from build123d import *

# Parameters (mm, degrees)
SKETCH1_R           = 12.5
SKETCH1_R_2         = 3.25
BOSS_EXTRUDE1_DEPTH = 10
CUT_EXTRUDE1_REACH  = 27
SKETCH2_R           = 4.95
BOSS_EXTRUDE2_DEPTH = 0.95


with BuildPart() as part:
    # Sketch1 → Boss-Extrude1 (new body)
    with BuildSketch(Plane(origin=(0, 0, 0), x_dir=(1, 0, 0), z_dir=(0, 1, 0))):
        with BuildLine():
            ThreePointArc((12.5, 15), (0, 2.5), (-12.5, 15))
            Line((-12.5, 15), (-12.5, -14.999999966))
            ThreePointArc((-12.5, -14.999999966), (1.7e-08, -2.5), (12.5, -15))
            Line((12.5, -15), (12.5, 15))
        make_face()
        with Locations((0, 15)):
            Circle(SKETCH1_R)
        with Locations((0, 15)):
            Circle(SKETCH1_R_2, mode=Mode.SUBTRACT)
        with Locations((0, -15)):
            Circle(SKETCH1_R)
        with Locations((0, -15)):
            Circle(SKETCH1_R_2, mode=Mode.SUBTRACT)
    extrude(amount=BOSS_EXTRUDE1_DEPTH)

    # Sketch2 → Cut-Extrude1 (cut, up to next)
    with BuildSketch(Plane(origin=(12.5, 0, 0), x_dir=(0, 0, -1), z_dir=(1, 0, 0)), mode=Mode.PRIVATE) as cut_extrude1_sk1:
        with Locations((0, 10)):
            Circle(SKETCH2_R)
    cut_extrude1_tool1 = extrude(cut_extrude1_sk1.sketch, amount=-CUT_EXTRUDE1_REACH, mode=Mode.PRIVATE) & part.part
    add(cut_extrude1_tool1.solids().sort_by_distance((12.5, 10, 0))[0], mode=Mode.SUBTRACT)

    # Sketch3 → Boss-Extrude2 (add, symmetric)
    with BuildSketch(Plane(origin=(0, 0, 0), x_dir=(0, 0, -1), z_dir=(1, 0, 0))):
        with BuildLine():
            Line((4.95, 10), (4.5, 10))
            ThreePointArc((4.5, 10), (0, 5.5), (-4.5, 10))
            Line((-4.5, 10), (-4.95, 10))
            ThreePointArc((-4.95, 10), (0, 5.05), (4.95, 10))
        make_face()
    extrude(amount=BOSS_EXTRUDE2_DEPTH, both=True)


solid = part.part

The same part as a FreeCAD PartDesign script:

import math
import FreeCAD as App
import Part
import Sketcher

V = App.Vector

doc = App.newDocument("Part")
body = doc.addObject("PartDesign::Body", "Body")

sketch1 = body.newObject("Sketcher::SketchObject", "Sketch")
sketch1.AttachmentSupport = (doc.getObject("XZ_Plane"), [""])
sketch1.MapMode = "FlatFace"
sketch1.addGeometry([
    Part.LineSegment(V(-12.5, -15, 0), V(-12.5, 15, 0)),
    Part.ArcOfCircle(Part.Circle(V(0, 15, 0), V(0, 0, 1), 12.5), math.radians(0), math.radians(180)),
    Part.LineSegment(V(12.5, 15, 0), V(12.5, -15, 0)),
    Part.ArcOfCircle(Part.Circle(V(0, -15, 0), V(0, 0, 1), 12.5), math.radians(180), math.radians(360)),
    Part.Circle(V(0, 15, 0), V(0, 0, 1), 3.2),
    Part.Circle(V(0, -15, 0), V(0, 0, 1), 3.2),
], False)
sketch1.addConstraint([
    Sketcher.Constraint("Tangent", 0, 2, 1, 2),
    Sketcher.Constraint("Tangent", 1, 1, 2, 1),
    Sketcher.Constraint("Tangent", 2, 2, 3, 2),
    Sketcher.Constraint("Tangent", 3, 1, 0, 1),
    Sketcher.Constraint("Vertical", 0),
    Sketcher.Constraint("Vertical", 2),
    Sketcher.Constraint("Coincident", 4, 3, 1, 3),
    Sketcher.Constraint("Coincident", 5, 3, 3, 3),
    Sketcher.Constraint("Equal", 4, 5),
    Sketcher.Constraint("Symmetric", 1, 3, 3, 3, -1, 1),
    Sketcher.Constraint("Diameter", 4, 6.5),
    Sketcher.Constraint("Radius", 1, 12.5),
    Sketcher.Constraint("DistanceY", 0, 1, 0, 2, 30.0),
])
pad1 = body.newObject("PartDesign::Pad", "Pad")
pad1.Profile = sketch1
pad1.Length = 10
pad1.Reversed = True

sketch2 = body.newObject("Sketcher::SketchObject", "Sketch001")
sketch2.AttachmentSupport = (doc.getObject("YZ_Plane"), [""])
sketch2.MapMode = "FlatFace"
sketch2.AttachmentOffset = App.Placement(V(0, 0, 12.5), App.Rotation())
sketch2.addGeometry(Part.Circle(V(10, 0, 0), V(0, 0, 1), 5), False)
sketch2.addConstraint([
    Sketcher.Constraint("PointOnObject", 0, 3, -1),
    Sketcher.Constraint("Diameter", 0, 9.9),
    Sketcher.Constraint("DistanceX", -1, 1, 0, 3, 10.0),
])
pocket1 = body.newObject("PartDesign::Pocket", "Pocket")
pocket1.Profile = sketch2
pocket1.Type = "UpToFirst"

sketch3 = body.newObject("Sketcher::SketchObject", "Sketch002")
sketch3.AttachmentSupport = (doc.getObject("YZ_Plane"), [""])
sketch3.MapMode = "FlatFace"
sketch3.addGeometry([
    Part.LineSegment(V(10, -4.95, 0), V(10, -4.5, 0)),
    Part.ArcOfCircle(Part.Circle(V(10, 0, 0), V(0, 0, 1), 4.5), math.radians(90), math.radians(270)),
    Part.LineSegment(V(10, 4.5, 0), V(10, 4.95, 0)),
    Part.ArcOfCircle(Part.Circle(V(10, 0, 0), V(0, 0, 1), 4.95), math.radians(90), math.radians(270)),
], False)
sketch3.addConstraint([
    Sketcher.Constraint("Coincident", 0, 2, 1, 2),
    Sketcher.Constraint("Coincident", 1, 1, 2, 1),
    Sketcher.Constraint("Coincident", 2, 2, 3, 1),
    Sketcher.Constraint("Coincident", 3, 2, 0, 1),
    Sketcher.Constraint("Vertical", 0),
    Sketcher.Constraint("Vertical", 2),
    Sketcher.Constraint("Coincident", 3, 3, 1, 3),
    Sketcher.Constraint("Symmetric", 0, 2, 1, 1, -1),
    Sketcher.Constraint("Vertical", 3, 3, 0, 2),
    Sketcher.Constraint("Radius", 1, 4.5),
    Sketcher.Constraint("Radius", 3, 4.95),
    Sketcher.Constraint("DistanceX", -1, 1, 1, 3, 10.0),
])
pad2 = body.newObject("PartDesign::Pad", "Pad001")
pad2.Profile = sketch3
pad2.Length = 1.9
pad2.Midplane = True

doc.recompute()
